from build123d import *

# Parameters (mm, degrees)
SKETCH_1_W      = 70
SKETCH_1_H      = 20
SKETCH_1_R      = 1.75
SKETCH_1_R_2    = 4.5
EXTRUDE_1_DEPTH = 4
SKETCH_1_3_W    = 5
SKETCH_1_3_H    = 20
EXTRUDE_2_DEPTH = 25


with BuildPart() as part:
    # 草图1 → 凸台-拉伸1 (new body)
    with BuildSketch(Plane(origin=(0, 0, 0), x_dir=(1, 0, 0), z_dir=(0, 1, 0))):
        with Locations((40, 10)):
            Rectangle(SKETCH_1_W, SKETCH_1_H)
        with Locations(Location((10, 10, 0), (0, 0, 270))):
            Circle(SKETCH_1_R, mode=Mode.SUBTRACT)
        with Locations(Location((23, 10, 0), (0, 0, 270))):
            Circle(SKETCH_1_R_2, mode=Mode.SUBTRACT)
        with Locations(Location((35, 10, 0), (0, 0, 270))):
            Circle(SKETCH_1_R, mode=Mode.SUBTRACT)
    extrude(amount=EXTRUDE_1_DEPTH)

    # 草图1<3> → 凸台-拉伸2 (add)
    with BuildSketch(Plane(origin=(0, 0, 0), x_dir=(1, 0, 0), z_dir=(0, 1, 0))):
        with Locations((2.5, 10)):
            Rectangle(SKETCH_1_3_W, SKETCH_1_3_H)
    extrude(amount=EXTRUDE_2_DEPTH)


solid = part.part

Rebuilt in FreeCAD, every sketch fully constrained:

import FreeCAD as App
import Part
import Sketcher
from FreeCAD import Vector

doc = App.newDocument("Part")
body = doc.addObject("PartDesign::Body", "Body")

# Sketch on XZ plane
sketch1 = body.newObject("Sketcher::SketchObject", "Sketch")
sketch1.AttachmentSupport = (doc.getObject("XZ_Plane"), [""])
sketch1.MapMode = "FlatFace"
sketch1.addGeometry(Part.LineSegment(Vector(5, -20, 0), Vector(5, 0, 0)), False)
sketch1.addGeometry(Part.LineSegment(Vector(5, 0, 0), Vector(75, 0, 0)), False)
sketch1.addGeometry(Part.LineSegment(Vector(75, 0, 0), Vector(75, -20, 0)), False)
sketch1.addGeometry(Part.LineSegment(Vector(75, -20, 0), Vector(5, -20, 0)), False)
sketch1.addGeometry(Part.Circle(Vector(10, -10, 0), Vector(0, 0, 1), 1.75), False)
sketch1.addGeometry(Part.Circle(Vector(23, -10, 0), Vector(0, 0, 1), 4.5), False)
sketch1.addGeometry(Part.Circle(Vector(35, -10, 0), Vector(0, 0, 1), 1.75), False)
sketch1.addConstraint(Sketcher.Constraint("Coincident", 0, 2, 1, 1))
sketch1.addConstraint(Sketcher.Constraint("Coincident", 1, 2, 2, 1))
sketch1.addConstraint(Sketcher.Constraint("Coincident", 2, 2, 3, 1))
sketch1.addConstraint(Sketcher.Constraint("Coincident", 3, 2, 0, 1))
sketch1.addConstraint(Sketcher.Constraint("Vertical", 0))
sketch1.addConstraint(Sketcher.Constraint("Horizontal", 1))
sketch1.addConstraint(Sketcher.Constraint("Vertical", 2))
sketch1.addConstraint(Sketcher.Constraint("Horizontal", 3))
sketch1.addConstraint(Sketcher.Constraint("Equal", 4, 6))
sketch1.addConstraint(Sketcher.Constraint("PointOnObject", 0, 2, -1))
sketch1.addConstraint(Sketcher.Constraint("Horizontal", 4, 3, 5, 3))
sketch1.addConstraint(Sketcher.Constraint("Horizontal", 5, 3, 6, 3))
sketch1.addConstraint(Sketcher.Constraint("Diameter", 5, 9.0))
sketch1.addConstraint(Sketcher.Constraint("Diameter", 4, 3.5))
sketch1.addConstraint(Sketcher.Constraint("DistanceX", 1, 1, 1, 2, 70.0))
sketch1.addConstraint(Sketcher.Constraint("DistanceY", 0, 1, 0, 2, 20.0))
sketch1.addConstraint(Sketcher.Constraint("DistanceX", -1, 1, 4, 3, 10.0))
sketch1.addConstraint(Sketcher.Constraint("DistanceY", 4, 3, -1, 1, 10.0))
sketch1.addConstraint(Sketcher.Constraint("DistanceX", -1, 1, 5, 3, 23.0))
sketch1.addConstraint(Sketcher.Constraint("DistanceX", -1, 1, 6, 3, 35.0))
sketch1.addConstraint(Sketcher.Constraint("DistanceX", -1, 1, 0, 2, 5.0))
pad1 = body.newObject("PartDesign::Pad", "Pad")
pad1.Profile = sketch1
pad1.Length = 4
pad1.Reversed = True

# Sketch on XZ plane
sketch2 = body.newObject("Sketcher::SketchObject", "Sketch001")
sketch2.AttachmentSupport = (doc.getObject("XZ_Plane"), [""])
sketch2.MapMode = "FlatFace"
sketch2.addGeometry(Part.LineSegment(Vector(0, -20, 0), Vector(0, 0, 0)), False)
sketch2.addGeometry(Part.LineSegment(Vector(0, 0, 0), Vector(5, 0, 0)), False)
sketch2.addGeometry(Part.LineSegment(Vector(5, 0, 0), Vector(5, -20, 0)), False)
sketch2.addGeometry(Part.LineSegment(Vector(5, -20, 0), Vector(0, -20, 0)), False)
sketch2.addConstraint(Sketcher.Constraint("Coincident", 0, 2, 1, 1))
sketch2.addConstraint(Sketcher.Constraint("Coincident", 1, 2, 2, 1))
sketch2.addConstraint(Sketcher.Constraint("Coincident", 2, 2, 3, 1))
sketch2.addConstraint(Sketcher.Constraint("Coincident", 3, 2, 0, 1))
sketch2.addConstraint(Sketcher.Constraint("Vertical", 0))
sketch2.addConstraint(Sketcher.Constraint("Horizontal", 1))
sketch2.addConstraint(Sketcher.Constraint("Vertical", 2))
sketch2.addConstraint(Sketcher.Constraint("Horizontal", 3))
sketch2.addConstraint(Sketcher.Constraint("Coincident", 0, 2, -1, 1))
sketch2.addConstraint(Sketcher.Constraint("DistanceX", 1, 1, 1, 2, 5.0))
sketch2.addConstraint(Sketcher.Constraint("DistanceY", 0, 1, 0, 2, 20.0))
pad2 = body.newObject("PartDesign::Pad", "Pad001")
pad2.Profile = sketch2
pad2.Length = 25
pad2.Reversed = True

doc.recompute()
